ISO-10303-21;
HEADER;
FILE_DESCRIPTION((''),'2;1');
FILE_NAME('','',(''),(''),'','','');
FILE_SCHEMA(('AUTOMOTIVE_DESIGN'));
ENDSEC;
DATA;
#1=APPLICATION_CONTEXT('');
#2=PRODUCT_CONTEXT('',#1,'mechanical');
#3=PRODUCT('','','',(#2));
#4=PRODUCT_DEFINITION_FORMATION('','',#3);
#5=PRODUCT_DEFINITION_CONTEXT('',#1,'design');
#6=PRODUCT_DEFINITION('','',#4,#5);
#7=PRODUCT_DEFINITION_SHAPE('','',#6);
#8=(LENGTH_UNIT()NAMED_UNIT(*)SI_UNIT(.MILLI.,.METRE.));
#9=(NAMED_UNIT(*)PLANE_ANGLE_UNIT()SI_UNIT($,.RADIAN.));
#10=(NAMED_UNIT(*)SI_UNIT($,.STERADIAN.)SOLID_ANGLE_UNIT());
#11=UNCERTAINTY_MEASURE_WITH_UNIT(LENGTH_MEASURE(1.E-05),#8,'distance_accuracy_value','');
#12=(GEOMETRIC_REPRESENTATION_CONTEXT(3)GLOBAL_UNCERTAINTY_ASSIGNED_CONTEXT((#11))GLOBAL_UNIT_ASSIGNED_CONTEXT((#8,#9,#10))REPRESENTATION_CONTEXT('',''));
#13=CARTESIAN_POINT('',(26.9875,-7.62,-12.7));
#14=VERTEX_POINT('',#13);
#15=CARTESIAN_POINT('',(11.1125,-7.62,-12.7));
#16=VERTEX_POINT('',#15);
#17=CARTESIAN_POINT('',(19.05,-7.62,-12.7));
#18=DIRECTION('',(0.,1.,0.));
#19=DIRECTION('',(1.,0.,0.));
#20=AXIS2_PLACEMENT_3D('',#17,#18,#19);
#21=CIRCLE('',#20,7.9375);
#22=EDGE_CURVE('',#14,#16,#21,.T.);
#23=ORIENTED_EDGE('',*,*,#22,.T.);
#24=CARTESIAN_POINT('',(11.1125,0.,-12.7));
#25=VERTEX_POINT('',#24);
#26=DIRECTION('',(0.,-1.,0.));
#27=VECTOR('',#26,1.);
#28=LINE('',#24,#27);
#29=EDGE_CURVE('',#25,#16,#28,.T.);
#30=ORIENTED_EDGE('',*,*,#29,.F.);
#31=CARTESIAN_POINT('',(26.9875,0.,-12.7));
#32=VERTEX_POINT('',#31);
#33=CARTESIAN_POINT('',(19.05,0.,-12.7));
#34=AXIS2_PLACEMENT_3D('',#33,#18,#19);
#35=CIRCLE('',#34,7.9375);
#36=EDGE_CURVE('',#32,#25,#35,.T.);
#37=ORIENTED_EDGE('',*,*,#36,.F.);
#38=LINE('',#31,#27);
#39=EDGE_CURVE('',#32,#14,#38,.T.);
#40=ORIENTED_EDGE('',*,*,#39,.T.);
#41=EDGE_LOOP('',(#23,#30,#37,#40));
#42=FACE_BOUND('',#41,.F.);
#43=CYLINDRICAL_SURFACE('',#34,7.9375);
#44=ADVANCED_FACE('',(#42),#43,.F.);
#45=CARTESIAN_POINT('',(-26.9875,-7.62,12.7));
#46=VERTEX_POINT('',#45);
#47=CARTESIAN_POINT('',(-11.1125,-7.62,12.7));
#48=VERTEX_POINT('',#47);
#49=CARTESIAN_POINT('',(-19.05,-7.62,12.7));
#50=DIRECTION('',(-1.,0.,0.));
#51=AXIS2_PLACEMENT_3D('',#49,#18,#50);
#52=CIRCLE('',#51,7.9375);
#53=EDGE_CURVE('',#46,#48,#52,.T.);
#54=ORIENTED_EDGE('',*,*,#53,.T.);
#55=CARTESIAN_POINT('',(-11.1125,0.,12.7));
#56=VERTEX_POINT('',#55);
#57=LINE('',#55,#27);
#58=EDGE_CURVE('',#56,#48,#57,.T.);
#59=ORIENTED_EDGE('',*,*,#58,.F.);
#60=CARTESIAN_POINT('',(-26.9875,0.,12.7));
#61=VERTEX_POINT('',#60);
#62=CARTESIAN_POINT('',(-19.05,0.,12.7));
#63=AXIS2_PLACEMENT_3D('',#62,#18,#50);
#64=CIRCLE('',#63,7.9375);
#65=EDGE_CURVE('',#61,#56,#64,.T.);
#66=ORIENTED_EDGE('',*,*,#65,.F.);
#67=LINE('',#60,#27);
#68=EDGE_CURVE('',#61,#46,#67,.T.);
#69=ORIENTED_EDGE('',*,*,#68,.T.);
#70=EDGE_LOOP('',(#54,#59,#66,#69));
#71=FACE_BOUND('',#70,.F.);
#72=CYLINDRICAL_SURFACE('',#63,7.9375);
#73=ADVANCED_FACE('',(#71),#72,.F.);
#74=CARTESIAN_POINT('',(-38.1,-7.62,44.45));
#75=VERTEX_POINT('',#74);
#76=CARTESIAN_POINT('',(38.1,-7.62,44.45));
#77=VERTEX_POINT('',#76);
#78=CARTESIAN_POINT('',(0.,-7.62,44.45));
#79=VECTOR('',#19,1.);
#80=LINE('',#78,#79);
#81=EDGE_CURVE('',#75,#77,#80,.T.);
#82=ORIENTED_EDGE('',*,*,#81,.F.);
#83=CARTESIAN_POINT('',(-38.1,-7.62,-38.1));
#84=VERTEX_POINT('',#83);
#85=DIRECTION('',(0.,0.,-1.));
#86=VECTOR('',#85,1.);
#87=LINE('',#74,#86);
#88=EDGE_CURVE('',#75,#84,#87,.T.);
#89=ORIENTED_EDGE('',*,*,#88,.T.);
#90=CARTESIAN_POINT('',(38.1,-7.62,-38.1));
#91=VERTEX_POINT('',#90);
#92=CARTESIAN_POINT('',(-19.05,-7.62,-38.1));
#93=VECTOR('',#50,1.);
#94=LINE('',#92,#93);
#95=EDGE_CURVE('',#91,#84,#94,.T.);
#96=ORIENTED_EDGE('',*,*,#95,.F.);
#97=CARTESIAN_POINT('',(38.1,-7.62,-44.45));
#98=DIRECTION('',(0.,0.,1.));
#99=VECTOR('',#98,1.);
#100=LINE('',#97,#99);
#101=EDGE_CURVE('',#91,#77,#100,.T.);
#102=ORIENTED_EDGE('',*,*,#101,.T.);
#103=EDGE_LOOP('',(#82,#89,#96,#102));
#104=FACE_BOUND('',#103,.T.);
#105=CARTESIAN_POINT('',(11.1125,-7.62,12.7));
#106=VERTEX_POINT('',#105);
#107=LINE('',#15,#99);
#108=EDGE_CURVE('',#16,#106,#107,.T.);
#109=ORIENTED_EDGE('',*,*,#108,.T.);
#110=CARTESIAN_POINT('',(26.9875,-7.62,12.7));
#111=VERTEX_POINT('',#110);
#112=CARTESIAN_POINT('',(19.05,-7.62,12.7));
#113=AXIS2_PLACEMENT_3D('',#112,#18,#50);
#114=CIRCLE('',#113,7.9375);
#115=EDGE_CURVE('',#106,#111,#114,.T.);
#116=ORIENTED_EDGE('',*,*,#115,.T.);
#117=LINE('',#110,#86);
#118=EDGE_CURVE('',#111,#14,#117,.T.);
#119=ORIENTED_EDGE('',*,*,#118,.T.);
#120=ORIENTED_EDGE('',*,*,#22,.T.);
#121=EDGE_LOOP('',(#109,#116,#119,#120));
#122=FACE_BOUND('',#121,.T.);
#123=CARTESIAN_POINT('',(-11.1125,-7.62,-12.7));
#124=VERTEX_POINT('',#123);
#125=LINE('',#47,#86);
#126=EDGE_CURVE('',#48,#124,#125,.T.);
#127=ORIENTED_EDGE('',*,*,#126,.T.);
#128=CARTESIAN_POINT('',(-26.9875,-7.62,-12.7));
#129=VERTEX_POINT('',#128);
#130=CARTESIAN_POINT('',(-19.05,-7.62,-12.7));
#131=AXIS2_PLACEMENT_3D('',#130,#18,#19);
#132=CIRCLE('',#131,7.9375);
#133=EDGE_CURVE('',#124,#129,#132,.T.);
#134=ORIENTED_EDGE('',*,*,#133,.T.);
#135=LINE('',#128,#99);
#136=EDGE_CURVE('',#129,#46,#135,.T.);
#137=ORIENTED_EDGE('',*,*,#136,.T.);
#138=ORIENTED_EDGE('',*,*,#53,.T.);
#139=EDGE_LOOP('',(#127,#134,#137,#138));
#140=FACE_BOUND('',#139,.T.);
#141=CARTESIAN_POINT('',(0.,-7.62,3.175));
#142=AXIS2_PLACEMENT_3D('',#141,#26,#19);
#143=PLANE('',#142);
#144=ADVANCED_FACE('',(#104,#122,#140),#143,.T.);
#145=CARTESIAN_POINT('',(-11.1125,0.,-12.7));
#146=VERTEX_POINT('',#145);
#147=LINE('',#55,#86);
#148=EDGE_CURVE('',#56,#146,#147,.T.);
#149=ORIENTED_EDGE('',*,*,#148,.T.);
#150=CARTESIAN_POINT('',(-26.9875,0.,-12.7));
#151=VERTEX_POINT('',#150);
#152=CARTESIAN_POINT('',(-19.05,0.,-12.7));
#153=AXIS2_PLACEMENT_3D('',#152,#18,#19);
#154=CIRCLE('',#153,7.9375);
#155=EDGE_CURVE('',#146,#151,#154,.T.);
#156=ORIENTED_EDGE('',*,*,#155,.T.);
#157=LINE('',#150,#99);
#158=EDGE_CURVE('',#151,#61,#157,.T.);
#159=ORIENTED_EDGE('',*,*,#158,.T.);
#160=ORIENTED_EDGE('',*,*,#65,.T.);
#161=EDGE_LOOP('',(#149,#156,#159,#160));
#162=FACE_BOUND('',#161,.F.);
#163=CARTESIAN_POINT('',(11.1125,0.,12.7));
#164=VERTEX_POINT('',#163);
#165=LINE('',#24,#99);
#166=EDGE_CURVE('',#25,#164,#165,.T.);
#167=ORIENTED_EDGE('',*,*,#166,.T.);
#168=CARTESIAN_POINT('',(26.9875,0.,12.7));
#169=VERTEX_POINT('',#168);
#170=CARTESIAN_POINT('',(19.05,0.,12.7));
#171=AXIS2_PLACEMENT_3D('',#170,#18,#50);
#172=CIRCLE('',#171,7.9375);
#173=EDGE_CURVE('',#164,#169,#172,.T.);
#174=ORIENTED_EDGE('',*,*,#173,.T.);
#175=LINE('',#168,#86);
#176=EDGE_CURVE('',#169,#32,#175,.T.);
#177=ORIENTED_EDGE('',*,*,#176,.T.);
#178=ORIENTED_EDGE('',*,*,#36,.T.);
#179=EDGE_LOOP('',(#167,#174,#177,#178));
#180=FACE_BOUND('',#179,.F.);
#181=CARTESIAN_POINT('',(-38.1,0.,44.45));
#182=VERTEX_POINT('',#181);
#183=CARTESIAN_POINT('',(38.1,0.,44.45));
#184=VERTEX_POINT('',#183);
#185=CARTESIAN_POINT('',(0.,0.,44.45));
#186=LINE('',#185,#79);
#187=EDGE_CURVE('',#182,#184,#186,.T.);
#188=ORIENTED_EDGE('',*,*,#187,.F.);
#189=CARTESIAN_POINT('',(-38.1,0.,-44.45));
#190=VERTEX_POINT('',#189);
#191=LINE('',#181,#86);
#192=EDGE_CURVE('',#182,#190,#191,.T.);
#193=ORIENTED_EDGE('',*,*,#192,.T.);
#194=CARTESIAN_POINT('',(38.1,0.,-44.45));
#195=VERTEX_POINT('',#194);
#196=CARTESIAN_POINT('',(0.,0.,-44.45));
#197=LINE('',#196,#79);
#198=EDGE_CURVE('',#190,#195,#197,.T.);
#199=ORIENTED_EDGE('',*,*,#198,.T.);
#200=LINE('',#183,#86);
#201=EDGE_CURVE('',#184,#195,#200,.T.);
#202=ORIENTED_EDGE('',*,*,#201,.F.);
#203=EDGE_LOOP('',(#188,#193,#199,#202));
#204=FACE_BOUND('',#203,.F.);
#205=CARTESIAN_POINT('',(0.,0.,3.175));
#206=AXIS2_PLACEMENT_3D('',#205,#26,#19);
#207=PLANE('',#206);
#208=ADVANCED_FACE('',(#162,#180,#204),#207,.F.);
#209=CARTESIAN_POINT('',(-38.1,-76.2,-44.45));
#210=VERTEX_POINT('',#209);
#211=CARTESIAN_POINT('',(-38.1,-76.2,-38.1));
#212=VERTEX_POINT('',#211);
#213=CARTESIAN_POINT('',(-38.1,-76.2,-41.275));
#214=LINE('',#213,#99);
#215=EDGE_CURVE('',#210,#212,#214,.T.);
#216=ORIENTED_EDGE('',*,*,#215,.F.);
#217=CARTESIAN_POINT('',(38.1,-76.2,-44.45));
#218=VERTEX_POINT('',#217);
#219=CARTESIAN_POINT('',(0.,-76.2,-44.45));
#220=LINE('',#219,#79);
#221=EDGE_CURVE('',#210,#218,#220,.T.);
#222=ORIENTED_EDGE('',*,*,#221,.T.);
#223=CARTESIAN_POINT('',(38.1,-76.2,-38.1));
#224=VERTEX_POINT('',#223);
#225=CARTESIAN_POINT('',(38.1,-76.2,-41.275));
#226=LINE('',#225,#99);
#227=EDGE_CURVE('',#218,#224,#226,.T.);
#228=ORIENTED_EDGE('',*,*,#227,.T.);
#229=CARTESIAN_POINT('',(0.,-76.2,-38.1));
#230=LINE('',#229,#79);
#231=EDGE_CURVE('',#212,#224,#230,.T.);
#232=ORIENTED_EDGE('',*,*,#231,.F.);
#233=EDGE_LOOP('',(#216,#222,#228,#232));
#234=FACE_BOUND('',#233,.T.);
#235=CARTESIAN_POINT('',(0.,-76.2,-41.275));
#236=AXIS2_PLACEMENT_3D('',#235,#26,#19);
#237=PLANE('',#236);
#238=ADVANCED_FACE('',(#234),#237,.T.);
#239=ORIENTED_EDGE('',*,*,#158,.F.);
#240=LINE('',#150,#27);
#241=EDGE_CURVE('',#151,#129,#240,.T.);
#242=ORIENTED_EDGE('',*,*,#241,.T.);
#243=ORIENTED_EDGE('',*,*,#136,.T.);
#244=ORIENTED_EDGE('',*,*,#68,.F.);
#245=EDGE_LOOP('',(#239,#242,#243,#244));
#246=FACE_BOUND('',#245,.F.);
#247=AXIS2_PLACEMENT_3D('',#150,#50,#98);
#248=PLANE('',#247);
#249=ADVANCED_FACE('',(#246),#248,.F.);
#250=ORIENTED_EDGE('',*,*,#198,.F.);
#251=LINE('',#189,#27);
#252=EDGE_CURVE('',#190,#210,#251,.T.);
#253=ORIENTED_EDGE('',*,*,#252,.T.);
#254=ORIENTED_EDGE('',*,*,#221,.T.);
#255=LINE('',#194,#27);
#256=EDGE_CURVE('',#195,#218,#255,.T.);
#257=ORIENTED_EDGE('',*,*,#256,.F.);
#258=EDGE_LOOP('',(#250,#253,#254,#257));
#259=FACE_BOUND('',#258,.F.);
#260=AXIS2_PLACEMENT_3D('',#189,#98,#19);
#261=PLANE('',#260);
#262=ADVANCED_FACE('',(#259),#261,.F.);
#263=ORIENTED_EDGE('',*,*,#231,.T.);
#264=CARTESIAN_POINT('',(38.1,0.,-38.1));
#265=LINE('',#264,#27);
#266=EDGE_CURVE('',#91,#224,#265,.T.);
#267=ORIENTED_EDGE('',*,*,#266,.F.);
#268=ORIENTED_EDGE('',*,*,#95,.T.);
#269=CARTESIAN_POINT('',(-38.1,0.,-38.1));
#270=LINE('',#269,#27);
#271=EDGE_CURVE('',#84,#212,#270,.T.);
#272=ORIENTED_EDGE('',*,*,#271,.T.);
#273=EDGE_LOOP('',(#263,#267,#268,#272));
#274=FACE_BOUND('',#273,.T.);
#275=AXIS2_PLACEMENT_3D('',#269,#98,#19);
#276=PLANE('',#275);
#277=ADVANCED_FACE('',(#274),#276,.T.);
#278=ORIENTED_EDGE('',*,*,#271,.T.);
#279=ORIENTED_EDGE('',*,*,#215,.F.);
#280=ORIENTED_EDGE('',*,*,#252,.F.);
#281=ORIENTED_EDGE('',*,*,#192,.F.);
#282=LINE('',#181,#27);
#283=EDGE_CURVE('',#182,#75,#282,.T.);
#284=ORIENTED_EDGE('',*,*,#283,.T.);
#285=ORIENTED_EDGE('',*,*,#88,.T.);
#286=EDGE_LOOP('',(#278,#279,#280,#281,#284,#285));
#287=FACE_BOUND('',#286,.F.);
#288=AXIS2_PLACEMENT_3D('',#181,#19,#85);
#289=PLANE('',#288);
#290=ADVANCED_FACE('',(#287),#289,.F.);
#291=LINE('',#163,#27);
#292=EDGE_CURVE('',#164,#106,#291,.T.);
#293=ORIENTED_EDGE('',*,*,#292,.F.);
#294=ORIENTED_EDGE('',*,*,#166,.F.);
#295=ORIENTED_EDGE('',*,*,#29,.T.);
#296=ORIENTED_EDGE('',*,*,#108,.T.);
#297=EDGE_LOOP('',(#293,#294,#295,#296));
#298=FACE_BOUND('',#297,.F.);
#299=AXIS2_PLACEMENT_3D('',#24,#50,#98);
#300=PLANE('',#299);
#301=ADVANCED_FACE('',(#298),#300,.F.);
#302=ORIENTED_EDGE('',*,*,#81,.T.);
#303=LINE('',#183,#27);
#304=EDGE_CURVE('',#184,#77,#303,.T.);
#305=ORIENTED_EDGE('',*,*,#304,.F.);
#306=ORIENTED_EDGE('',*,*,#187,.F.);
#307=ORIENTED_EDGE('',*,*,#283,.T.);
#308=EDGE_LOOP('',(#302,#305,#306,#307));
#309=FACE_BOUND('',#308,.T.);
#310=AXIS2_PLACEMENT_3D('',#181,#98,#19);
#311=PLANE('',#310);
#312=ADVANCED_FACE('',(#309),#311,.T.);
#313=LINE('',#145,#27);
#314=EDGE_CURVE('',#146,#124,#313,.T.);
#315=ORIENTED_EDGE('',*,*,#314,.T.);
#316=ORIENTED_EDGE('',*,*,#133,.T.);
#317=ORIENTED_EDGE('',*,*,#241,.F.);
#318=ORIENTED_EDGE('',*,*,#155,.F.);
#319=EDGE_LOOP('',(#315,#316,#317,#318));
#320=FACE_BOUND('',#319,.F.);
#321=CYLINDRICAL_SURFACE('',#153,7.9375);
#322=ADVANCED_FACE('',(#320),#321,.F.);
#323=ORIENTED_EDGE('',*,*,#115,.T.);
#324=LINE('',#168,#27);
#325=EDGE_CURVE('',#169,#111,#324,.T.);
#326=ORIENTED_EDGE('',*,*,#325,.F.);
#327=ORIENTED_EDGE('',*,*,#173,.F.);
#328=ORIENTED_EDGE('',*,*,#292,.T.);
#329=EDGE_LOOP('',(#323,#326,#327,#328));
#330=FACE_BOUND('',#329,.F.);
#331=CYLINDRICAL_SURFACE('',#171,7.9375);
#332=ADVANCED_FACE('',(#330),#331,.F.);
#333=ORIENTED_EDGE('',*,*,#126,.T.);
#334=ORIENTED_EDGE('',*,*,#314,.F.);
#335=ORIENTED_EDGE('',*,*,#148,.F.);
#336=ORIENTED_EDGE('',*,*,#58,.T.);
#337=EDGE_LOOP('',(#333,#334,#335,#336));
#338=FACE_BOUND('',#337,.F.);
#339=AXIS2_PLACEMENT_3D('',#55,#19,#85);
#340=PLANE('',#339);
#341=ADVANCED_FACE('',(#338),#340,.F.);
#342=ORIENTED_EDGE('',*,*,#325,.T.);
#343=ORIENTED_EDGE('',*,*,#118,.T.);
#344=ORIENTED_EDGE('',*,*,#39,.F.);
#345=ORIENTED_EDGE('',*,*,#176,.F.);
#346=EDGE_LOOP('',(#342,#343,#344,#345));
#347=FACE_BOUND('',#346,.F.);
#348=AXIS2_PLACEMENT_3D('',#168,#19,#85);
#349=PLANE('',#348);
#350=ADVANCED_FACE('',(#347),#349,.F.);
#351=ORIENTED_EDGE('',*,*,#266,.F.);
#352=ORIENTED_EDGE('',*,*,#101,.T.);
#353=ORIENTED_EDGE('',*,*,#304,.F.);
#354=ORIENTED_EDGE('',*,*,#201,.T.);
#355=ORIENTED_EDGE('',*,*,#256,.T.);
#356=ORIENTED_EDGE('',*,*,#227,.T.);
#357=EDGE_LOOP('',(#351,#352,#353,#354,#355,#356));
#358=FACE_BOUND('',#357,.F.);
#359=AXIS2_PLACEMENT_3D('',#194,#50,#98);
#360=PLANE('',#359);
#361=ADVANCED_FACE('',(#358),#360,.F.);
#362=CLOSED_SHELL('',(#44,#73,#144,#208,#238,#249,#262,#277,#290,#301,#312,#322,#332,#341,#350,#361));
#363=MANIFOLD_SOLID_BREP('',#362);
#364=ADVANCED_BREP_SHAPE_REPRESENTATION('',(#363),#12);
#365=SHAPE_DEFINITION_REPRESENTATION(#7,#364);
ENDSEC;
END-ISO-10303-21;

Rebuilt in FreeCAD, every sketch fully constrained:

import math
import FreeCAD as App
import Part
import Sketcher
from FreeCAD import Vector
Q = App.Units.Quantity

doc = App.newDocument("Part")
body = doc.addObject("PartDesign::Body", "Body")

sketch1 = doc.addObject("Sketcher::SketchObject", "Sketch")
body.addObject(sketch1)
sketch1.AttachmentSupport = (doc.XZ_Plane, [""])
sketch1.MapMode = "FlatFace"
sketch1.addGeometry([
    Part.LineSegment(Vector(-38, 44, 0), Vector(-38, -44, 0)),
    Part.LineSegment(Vector(-38, -44, 0), Vector(38, -44, 0)),
    Part.LineSegment(Vector(38, -44, 0), Vector(38, 44, 0)),
    Part.LineSegment(Vector(38, 44, 0), Vector(-38, 44, 0)),
    Part.LineSegment(Vector(-27, -13, 0), Vector(-27, 13, 0)),
    Part.ArcOfCircle(Part.Circle(Vector(-19, 13, 0), Vector(0, 0, 1), 8), math.radians(0), math.radians(180)),
    Part.LineSegment(Vector(-11, 13, 0), Vector(-11, -13, 0)),
    Part.ArcOfCircle(Part.Circle(Vector(-19, -13, 0), Vector(0, 0, 1), 8), math.radians(180), math.radians(360)),
    Part.LineSegment(Vector(11, -13, 0), Vector(11, 13, 0)),
    Part.ArcOfCircle(Part.Circle(Vector(19, 13, 0), Vector(0, 0, 1), 8), math.radians(0), math.radians(180)),
    Part.LineSegment(Vector(27, 13, 0), Vector(27, -13, 0)),
    Part.ArcOfCircle(Part.Circle(Vector(19, -13, 0), Vector(0, 0, 1), 8), math.radians(180), math.radians(360)),
], False)
sketch1.addConstraint([
    Sketcher.Constraint("Coincident", 0, 2, 1, 1),
    Sketcher.Constraint("Coincident", 1, 2, 2, 1),
    Sketcher.Constraint("Coincident", 2, 2, 3, 1),
    Sketcher.Constraint("Coincident", 3, 2, 0, 1),
    Sketcher.Constraint("Tangent", 4, 2, 5, 2),
    Sketcher.Constraint("Tangent", 5, 1, 6, 1),
    Sketcher.Constraint("Tangent", 6, 2, 7, 2),
    Sketcher.Constraint("Tangent", 7, 1, 4, 1),
    Sketcher.Constraint("Tangent", 8, 2, 9, 2),
    Sketcher.Constraint("Tangent", 9, 1, 10, 1),
    Sketcher.Constraint("Tangent", 10, 2, 11, 2),
    Sketcher.Constraint("Tangent", 11, 1, 8, 1),
    Sketcher.Constraint("Vertical", 0),
    Sketcher.Constraint("Horizontal", 1),
    Sketcher.Constraint("Vertical", 2),
    Sketcher.Constraint("Horizontal", 3),
    Sketcher.Constraint("Vertical", 4),
    Sketcher.Constraint("Vertical", 6),
    Sketcher.Constraint("Vertical", 8),
    Sketcher.Constraint("Vertical", 10),
    Sketcher.Constraint("Equal", 7, 9),
    Sketcher.Constraint("Symmetric", 7, 3, 9, 3, -1, 1),
    Sketcher.Constraint("Symmetric", 0, 2, 2, 2, -1, 1),
    Sketcher.Constraint("Horizontal", 5, 3, 9, 3),
    Sketcher.Constraint("Horizontal", 7, 3, 11, 3),
    Sketcher.Constraint("DistanceX", 1, 1, 1, 2, Q("3 in")),
    Sketcher.Constraint("DistanceY", 4, 1, 4, 2, Q("1 in")),
    Sketcher.Constraint("DistanceY", 0, 2, 0, 1, Q("3.5 in")),
    Sketcher.Constraint("Radius", 5, Q("0.3125 in")),
    Sketcher.Constraint("DistanceX", 5, 3, 9, 3, Q("1.5 in")),
])
pad1 = doc.addObject("PartDesign::Pad", "Pad")
body.addObject(pad1)
pad1.Profile = sketch1
pad1.Length = Q("0.3 in")

sketch2 = doc.addObject("Sketcher::SketchObject", "Sketch001")
body.addObject(sketch2)
sketch2.AttachmentSupport = (doc.XZ_Plane, [""])
sketch2.MapMode = "FlatFace"
sketch2.addGeometry([
    Part.LineSegment(Vector(-38, -38, 0), Vector(-38, -44, 0)),
    Part.LineSegment(Vector(-38, -44, 0), Vector(38, -44, 0)),
    Part.LineSegment(Vector(38, -44, 0), Vector(38, -38, 0)),
    Part.LineSegment(Vector(38, -38, 0), Vector(-38, -38, 0)),
], False)
sketch2.addConstraint([
    Sketcher.Constraint("Coincident", 0, 2, 1, 1),
    Sketcher.Constraint("Coincident", 1, 2, 2, 1),
    Sketcher.Constraint("Coincident", 2, 2, 3, 1),
    Sketcher.Constraint("Coincident", 3, 2, 0, 1),
    Sketcher.Constraint("Vertical", 0),
    Sketcher.Constraint("Horizontal", 1),
    Sketcher.Constraint("Vertical", 2),
    Sketcher.Constraint("Horizontal", 3),
    Sketcher.Constraint("DistanceX", 1, 1, 1, 2, Q("3 in")),
    Sketcher.Constraint("DistanceY", 0, 2, 0, 1, Q("0.25 in")),
    Sketcher.Constraint("DistanceX", 0, 2, -1, 1, Q("1.5 in")),
    Sketcher.Constraint("DistanceY", 2, 2, -1, 1, Q("1.5 in")),
])
pad2 = doc.addObject("PartDesign::Pad", "Pad001")
body.addObject(pad2)
pad2.Profile = sketch2
pad2.Length = Q("3 in")

doc.recompute()
